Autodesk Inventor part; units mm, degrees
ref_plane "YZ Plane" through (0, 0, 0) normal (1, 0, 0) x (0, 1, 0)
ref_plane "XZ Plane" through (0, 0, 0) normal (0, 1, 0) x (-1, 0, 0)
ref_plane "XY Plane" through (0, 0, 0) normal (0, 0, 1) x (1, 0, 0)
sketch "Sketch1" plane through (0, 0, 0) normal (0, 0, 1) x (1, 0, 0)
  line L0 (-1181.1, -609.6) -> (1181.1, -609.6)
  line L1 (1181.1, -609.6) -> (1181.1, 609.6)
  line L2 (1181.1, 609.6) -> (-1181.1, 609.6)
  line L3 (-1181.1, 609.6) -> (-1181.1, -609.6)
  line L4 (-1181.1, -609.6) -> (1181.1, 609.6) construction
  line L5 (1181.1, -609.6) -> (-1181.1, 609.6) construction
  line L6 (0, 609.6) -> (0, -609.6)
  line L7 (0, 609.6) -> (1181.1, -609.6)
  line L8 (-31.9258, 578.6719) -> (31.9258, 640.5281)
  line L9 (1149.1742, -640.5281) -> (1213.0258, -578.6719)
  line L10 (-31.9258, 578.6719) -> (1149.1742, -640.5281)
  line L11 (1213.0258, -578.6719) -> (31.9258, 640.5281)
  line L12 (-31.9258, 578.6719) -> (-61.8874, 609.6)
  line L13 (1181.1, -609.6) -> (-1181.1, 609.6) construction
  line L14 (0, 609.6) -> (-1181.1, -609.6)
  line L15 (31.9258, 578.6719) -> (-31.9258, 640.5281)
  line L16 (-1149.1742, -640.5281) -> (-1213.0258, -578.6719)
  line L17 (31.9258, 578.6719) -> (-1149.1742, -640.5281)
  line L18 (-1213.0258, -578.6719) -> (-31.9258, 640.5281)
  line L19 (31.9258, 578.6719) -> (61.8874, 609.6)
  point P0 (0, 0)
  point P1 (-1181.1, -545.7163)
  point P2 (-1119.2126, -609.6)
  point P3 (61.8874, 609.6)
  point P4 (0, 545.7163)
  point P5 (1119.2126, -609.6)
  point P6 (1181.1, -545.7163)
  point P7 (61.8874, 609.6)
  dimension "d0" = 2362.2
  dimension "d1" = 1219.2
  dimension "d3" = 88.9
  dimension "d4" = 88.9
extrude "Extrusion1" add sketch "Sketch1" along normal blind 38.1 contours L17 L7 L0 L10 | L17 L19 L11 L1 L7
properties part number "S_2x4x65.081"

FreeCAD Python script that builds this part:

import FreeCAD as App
import Part
import Sketcher

V = App.Vector
Q = App.Units.Quantity


def add_polygon(sketch, points):
    """Adds a closed chain of lines whose ends are joined by coincident constraints."""
    first, n = sketch.GeometryCount, len(points)
    for a, b in zip(points, points[1:] + points[:1]):
        sketch.addGeometry(Part.LineSegment(App.Vector(*a, 0), App.Vector(*b, 0)), False)
    for i in range(n):
        sketch.addConstraint(Sketcher.Constraint("Coincident", first + i, 2, first + (i + 1) % n, 1))

doc = App.newDocument("Part")
params = doc.addObject("Spreadsheet::Sheet", "Params")
for row, (alias, value) in enumerate([
    ("pad1_length", "1.5 in"),
], start=1):
    params.set(f"A{row}", alias)
    params.set(f"B{row}", "=" + value)
    params.setAlias(f"B{row}", alias)

body = doc.addObject("PartDesign::Body", "Body")

# Sketch on XY plane
sketch1 = body.newObject("Sketcher::SketchObject", "Sketch")
sketch1.AttachmentSupport = (doc.getObject("XY_Plane"), [""])
sketch1.MapMode = "FlatFace"
add_polygon(sketch1, [(0, 545.716235), (1119.212603, -609.6), (1181.1, -609.6), (1181.1, -545.716235), (61.8874, 609.6), (31.9258, 578.6719)])  # lines 0-5
sketch1.addConstraint([
    Sketcher.Constraint("Horizontal", 1),
    Sketcher.Constraint("Vertical", 2),
    Sketcher.Constraint("PointOnObject", 5, 2, -2),
    Sketcher.Constraint("Parallel", 0, 3),
    Sketcher.Constraint("Parallel", 4, 5),
    Sketcher.Constraint("Equal", 0, 3),
    Sketcher.Constraint("DistanceY", 0, 2, 3, 2, Q("48 in")),
    Sketcher.Constraint("DistanceY", 0, 2, -1, 1, Q("24 in")),
    Sketcher.Constraint("DistanceX", -1, 1, 1, 2, Q("46.5 in")),
    Sketcher.Constraint("Angle", 0, Q("-45.9094 deg")),
    Sketcher.Constraint("DistanceX", 1, 1, 1, 2, Q("2.4365 in")),
    Sketcher.Constraint("DistanceX", 4, 2, 3, 2, Q("1.1796 in")),
])
pad1 = body.newObject("PartDesign::Pad", "Pad")
pad1.Profile = sketch1
pad1.setExpression("Length", "Params.pad1_length")

doc.recompute()
